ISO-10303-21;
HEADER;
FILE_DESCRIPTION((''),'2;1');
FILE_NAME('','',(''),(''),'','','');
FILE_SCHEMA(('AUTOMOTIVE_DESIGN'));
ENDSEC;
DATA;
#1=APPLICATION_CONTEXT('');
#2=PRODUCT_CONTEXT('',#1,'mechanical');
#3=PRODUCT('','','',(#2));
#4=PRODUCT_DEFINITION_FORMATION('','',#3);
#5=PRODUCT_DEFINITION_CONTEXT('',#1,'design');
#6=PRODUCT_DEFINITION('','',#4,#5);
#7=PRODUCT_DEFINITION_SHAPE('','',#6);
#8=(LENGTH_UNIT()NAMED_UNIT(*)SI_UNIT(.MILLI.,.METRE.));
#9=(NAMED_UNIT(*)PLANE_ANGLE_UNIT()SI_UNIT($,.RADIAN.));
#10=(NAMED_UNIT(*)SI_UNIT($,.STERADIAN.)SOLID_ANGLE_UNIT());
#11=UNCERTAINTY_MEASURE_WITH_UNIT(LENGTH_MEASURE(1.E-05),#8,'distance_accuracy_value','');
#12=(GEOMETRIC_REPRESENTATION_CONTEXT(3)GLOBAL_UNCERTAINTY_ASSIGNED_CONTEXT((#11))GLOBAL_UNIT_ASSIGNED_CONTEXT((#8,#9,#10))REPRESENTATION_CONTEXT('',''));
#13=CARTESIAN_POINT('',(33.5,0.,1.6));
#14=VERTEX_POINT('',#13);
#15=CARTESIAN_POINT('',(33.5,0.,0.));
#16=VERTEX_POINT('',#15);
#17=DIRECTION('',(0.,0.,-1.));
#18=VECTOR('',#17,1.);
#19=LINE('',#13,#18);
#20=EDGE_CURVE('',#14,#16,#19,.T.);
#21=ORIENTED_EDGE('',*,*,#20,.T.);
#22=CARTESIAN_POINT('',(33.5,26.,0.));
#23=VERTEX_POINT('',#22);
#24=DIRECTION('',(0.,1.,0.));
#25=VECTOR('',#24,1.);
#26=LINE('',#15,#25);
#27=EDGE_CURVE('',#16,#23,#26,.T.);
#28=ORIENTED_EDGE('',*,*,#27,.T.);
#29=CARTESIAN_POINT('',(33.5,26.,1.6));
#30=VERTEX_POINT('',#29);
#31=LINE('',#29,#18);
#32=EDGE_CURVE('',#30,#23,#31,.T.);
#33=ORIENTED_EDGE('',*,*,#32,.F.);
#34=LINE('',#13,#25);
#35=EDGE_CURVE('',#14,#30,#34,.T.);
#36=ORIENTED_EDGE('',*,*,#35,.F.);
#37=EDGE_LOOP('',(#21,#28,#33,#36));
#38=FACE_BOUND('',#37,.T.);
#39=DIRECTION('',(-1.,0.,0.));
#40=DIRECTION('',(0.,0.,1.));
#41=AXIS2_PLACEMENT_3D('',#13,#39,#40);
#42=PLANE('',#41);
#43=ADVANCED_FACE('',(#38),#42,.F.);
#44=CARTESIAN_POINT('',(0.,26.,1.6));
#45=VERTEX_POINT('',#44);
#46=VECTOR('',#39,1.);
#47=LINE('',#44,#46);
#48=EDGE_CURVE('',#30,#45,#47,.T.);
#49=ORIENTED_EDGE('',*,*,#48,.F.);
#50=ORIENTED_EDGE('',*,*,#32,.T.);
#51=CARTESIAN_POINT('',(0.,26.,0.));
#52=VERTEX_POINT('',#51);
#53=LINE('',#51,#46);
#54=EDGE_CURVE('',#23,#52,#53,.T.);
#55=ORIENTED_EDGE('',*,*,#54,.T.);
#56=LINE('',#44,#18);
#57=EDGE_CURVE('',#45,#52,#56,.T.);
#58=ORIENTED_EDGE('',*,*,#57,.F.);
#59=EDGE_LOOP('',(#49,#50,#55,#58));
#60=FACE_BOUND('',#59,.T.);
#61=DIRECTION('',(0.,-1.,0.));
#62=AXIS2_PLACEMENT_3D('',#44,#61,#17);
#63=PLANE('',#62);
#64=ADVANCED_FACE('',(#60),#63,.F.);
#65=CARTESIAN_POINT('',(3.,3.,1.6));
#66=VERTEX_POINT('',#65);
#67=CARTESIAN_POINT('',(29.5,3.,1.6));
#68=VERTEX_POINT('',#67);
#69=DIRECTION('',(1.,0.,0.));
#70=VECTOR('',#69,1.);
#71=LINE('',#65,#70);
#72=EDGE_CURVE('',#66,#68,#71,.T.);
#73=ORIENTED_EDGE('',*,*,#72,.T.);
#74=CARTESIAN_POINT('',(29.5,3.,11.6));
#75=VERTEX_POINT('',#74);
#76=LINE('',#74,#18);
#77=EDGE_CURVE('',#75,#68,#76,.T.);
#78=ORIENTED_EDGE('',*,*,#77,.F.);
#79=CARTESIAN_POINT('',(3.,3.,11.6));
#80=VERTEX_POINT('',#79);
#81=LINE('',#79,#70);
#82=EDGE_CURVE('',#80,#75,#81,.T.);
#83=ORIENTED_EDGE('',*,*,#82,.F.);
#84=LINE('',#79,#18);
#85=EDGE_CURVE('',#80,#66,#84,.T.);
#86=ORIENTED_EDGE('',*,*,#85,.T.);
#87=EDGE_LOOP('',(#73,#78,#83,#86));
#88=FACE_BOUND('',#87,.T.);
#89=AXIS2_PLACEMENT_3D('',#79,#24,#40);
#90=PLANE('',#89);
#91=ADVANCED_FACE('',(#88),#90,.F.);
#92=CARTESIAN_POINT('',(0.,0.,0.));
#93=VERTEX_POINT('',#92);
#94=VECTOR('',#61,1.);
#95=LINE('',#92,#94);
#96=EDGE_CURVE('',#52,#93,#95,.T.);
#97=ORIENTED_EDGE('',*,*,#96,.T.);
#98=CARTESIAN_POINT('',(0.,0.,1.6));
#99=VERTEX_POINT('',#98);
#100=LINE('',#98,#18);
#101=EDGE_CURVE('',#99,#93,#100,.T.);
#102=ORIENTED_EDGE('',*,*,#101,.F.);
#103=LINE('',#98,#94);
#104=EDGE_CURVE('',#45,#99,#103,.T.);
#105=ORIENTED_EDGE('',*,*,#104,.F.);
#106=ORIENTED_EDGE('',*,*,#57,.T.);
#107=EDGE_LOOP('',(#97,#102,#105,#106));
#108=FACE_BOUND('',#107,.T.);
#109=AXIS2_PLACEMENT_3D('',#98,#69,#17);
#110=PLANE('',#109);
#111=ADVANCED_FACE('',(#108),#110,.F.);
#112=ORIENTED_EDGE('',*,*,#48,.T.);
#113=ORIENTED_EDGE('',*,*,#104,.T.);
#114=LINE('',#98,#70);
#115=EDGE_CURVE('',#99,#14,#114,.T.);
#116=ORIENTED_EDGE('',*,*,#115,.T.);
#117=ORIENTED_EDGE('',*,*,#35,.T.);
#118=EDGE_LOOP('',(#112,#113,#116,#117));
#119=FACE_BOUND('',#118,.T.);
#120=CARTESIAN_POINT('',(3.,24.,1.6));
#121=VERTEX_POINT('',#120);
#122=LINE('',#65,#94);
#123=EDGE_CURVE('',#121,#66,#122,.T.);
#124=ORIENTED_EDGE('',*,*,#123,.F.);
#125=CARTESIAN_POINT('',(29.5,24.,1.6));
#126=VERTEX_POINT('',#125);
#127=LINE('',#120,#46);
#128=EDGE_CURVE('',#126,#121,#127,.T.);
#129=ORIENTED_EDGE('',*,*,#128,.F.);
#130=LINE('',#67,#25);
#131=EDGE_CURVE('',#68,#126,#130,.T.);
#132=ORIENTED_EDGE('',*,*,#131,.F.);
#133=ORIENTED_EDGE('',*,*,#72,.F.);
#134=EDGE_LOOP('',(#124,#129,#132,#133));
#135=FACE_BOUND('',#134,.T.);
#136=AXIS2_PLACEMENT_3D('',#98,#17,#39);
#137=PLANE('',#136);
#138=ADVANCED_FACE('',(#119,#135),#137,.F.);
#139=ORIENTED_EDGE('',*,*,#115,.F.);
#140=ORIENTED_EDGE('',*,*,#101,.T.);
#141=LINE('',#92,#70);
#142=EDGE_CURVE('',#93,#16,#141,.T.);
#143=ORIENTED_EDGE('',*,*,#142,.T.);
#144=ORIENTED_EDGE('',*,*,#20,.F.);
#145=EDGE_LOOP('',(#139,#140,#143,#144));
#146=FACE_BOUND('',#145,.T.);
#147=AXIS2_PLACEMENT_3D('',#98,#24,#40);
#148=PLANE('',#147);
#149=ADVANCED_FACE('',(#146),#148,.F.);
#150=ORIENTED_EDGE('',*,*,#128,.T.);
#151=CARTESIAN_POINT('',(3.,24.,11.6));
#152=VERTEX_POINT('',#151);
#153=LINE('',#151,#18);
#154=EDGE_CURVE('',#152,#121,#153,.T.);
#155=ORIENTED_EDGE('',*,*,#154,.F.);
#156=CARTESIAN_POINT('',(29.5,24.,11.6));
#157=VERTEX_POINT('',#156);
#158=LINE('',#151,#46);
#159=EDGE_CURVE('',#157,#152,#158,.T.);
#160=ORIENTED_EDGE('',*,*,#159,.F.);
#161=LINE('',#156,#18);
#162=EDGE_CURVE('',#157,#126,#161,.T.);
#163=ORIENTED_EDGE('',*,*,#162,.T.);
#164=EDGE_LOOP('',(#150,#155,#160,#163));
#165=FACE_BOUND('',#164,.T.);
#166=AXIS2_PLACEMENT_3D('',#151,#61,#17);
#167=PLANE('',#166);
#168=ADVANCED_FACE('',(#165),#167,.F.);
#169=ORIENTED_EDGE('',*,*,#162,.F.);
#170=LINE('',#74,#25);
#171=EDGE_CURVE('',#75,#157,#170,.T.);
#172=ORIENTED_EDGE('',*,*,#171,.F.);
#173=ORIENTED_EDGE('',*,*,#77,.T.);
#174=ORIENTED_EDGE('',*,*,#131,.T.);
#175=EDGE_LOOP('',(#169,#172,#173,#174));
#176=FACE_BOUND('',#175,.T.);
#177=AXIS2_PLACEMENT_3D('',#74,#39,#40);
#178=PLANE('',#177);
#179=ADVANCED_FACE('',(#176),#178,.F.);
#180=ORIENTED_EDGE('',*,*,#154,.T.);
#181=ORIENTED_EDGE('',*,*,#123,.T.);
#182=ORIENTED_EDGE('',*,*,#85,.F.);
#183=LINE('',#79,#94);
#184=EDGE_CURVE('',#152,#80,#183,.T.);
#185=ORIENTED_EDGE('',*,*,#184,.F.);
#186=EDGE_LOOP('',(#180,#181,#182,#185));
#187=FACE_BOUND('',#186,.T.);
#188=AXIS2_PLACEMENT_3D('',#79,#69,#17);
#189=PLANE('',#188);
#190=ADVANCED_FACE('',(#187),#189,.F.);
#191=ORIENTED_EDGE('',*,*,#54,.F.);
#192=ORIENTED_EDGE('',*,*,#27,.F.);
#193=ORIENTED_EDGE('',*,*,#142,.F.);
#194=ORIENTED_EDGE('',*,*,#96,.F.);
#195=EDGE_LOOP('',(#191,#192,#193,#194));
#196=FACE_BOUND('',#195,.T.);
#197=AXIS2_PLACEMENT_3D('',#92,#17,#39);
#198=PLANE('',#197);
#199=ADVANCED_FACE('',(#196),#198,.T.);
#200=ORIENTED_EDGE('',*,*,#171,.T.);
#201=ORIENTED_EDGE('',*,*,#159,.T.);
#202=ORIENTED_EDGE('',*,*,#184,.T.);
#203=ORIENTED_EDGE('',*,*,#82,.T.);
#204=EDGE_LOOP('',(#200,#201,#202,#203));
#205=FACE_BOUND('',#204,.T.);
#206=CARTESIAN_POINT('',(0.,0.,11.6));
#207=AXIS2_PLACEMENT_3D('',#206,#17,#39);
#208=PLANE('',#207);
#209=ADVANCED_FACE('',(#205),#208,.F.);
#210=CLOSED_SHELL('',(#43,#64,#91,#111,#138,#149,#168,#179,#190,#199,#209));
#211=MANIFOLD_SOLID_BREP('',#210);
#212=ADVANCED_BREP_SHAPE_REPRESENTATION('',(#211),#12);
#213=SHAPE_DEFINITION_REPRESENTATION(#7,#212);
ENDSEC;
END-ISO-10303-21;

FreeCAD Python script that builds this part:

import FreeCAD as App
import Part
import Sketcher
Q = App.Units.Quantity


def add_polygon(sketch, points):
    """Adds a closed chain of lines whose ends are joined by coincident constraints."""
    first, n = sketch.GeometryCount, len(points)
    for a, b in zip(points, points[1:] + points[:1]):
        sketch.addGeometry(Part.LineSegment(App.Vector(*a, 0), App.Vector(*b, 0)), False)
    for i in range(n):
        sketch.addConstraint(Sketcher.Constraint("Coincident", first + i, 2, first + (i + 1) % n, 1))

doc = App.newDocument("Part")
body = doc.addObject("PartDesign::Body", "Body")

# Sketch on XY plane
sketch1 = body.newObject("Sketcher::SketchObject", "Sketch")
sketch1.AttachmentSupport = (doc.getObject("XY_Plane"), [""])
sketch1.MapMode = "FlatFace"
add_polygon(sketch1, [(0, 26), (0, 0), (34, 0), (34, 26)])  # lines 0-3
sketch1.addConstraint([
    Sketcher.Constraint("Vertical", 0),
    Sketcher.Constraint("Horizontal", 1),
    Sketcher.Constraint("Vertical", 2),
    Sketcher.Constraint("Horizontal", 3),
    Sketcher.Constraint("Coincident", 0, 2, -1, 1),
    Sketcher.Constraint("DistanceY", 0, 2, 0, 1, Q("26 mm")),
    Sketcher.Constraint("DistanceX", 1, 1, 1, 2, Q("33.5 mm")),
])
pad1 = body.newObject("PartDesign::Pad", "Pad")
pad1.Profile = sketch1
pad1.Length = 1.6

# Sketch on XY plane
sketch2 = body.newObject("Sketcher::SketchObject", "Sketch001")
sketch2.AttachmentSupport = (doc.getObject("XY_Plane"), [""])
sketch2.MapMode = "FlatFace"
sketch2.AttachmentOffset = App.Placement(App.Vector(0, 0, 1.6), App.Rotation())
add_polygon(sketch2, [(3, 24), (3, 3), (30, 3), (30, 24)])  # lines 0-3
sketch2.addConstraint([
    Sketcher.Constraint("Vertical", 0),
    Sketcher.Constraint("Horizontal", 1),
    Sketcher.Constraint("Vertical", 2),
    Sketcher.Constraint("Horizontal", 3),
    Sketcher.Constraint("DistanceY", 0, 2, 0, 1, Q("21 mm")),
    Sketcher.Constraint("DistanceX", 1, 1, 1, 2, Q("26.5 mm")),
    Sketcher.Constraint("DistanceX", -1, 1, 0, 2, Q("3 mm")),
    Sketcher.Constraint("DistanceY", -1, 1, 0, 2, Q("3 mm")),
])
pad2 = body.newObject("PartDesign::Pad", "Pad001")
pad2.Profile = sketch2
pad2.Length = 10

doc.recompute()
